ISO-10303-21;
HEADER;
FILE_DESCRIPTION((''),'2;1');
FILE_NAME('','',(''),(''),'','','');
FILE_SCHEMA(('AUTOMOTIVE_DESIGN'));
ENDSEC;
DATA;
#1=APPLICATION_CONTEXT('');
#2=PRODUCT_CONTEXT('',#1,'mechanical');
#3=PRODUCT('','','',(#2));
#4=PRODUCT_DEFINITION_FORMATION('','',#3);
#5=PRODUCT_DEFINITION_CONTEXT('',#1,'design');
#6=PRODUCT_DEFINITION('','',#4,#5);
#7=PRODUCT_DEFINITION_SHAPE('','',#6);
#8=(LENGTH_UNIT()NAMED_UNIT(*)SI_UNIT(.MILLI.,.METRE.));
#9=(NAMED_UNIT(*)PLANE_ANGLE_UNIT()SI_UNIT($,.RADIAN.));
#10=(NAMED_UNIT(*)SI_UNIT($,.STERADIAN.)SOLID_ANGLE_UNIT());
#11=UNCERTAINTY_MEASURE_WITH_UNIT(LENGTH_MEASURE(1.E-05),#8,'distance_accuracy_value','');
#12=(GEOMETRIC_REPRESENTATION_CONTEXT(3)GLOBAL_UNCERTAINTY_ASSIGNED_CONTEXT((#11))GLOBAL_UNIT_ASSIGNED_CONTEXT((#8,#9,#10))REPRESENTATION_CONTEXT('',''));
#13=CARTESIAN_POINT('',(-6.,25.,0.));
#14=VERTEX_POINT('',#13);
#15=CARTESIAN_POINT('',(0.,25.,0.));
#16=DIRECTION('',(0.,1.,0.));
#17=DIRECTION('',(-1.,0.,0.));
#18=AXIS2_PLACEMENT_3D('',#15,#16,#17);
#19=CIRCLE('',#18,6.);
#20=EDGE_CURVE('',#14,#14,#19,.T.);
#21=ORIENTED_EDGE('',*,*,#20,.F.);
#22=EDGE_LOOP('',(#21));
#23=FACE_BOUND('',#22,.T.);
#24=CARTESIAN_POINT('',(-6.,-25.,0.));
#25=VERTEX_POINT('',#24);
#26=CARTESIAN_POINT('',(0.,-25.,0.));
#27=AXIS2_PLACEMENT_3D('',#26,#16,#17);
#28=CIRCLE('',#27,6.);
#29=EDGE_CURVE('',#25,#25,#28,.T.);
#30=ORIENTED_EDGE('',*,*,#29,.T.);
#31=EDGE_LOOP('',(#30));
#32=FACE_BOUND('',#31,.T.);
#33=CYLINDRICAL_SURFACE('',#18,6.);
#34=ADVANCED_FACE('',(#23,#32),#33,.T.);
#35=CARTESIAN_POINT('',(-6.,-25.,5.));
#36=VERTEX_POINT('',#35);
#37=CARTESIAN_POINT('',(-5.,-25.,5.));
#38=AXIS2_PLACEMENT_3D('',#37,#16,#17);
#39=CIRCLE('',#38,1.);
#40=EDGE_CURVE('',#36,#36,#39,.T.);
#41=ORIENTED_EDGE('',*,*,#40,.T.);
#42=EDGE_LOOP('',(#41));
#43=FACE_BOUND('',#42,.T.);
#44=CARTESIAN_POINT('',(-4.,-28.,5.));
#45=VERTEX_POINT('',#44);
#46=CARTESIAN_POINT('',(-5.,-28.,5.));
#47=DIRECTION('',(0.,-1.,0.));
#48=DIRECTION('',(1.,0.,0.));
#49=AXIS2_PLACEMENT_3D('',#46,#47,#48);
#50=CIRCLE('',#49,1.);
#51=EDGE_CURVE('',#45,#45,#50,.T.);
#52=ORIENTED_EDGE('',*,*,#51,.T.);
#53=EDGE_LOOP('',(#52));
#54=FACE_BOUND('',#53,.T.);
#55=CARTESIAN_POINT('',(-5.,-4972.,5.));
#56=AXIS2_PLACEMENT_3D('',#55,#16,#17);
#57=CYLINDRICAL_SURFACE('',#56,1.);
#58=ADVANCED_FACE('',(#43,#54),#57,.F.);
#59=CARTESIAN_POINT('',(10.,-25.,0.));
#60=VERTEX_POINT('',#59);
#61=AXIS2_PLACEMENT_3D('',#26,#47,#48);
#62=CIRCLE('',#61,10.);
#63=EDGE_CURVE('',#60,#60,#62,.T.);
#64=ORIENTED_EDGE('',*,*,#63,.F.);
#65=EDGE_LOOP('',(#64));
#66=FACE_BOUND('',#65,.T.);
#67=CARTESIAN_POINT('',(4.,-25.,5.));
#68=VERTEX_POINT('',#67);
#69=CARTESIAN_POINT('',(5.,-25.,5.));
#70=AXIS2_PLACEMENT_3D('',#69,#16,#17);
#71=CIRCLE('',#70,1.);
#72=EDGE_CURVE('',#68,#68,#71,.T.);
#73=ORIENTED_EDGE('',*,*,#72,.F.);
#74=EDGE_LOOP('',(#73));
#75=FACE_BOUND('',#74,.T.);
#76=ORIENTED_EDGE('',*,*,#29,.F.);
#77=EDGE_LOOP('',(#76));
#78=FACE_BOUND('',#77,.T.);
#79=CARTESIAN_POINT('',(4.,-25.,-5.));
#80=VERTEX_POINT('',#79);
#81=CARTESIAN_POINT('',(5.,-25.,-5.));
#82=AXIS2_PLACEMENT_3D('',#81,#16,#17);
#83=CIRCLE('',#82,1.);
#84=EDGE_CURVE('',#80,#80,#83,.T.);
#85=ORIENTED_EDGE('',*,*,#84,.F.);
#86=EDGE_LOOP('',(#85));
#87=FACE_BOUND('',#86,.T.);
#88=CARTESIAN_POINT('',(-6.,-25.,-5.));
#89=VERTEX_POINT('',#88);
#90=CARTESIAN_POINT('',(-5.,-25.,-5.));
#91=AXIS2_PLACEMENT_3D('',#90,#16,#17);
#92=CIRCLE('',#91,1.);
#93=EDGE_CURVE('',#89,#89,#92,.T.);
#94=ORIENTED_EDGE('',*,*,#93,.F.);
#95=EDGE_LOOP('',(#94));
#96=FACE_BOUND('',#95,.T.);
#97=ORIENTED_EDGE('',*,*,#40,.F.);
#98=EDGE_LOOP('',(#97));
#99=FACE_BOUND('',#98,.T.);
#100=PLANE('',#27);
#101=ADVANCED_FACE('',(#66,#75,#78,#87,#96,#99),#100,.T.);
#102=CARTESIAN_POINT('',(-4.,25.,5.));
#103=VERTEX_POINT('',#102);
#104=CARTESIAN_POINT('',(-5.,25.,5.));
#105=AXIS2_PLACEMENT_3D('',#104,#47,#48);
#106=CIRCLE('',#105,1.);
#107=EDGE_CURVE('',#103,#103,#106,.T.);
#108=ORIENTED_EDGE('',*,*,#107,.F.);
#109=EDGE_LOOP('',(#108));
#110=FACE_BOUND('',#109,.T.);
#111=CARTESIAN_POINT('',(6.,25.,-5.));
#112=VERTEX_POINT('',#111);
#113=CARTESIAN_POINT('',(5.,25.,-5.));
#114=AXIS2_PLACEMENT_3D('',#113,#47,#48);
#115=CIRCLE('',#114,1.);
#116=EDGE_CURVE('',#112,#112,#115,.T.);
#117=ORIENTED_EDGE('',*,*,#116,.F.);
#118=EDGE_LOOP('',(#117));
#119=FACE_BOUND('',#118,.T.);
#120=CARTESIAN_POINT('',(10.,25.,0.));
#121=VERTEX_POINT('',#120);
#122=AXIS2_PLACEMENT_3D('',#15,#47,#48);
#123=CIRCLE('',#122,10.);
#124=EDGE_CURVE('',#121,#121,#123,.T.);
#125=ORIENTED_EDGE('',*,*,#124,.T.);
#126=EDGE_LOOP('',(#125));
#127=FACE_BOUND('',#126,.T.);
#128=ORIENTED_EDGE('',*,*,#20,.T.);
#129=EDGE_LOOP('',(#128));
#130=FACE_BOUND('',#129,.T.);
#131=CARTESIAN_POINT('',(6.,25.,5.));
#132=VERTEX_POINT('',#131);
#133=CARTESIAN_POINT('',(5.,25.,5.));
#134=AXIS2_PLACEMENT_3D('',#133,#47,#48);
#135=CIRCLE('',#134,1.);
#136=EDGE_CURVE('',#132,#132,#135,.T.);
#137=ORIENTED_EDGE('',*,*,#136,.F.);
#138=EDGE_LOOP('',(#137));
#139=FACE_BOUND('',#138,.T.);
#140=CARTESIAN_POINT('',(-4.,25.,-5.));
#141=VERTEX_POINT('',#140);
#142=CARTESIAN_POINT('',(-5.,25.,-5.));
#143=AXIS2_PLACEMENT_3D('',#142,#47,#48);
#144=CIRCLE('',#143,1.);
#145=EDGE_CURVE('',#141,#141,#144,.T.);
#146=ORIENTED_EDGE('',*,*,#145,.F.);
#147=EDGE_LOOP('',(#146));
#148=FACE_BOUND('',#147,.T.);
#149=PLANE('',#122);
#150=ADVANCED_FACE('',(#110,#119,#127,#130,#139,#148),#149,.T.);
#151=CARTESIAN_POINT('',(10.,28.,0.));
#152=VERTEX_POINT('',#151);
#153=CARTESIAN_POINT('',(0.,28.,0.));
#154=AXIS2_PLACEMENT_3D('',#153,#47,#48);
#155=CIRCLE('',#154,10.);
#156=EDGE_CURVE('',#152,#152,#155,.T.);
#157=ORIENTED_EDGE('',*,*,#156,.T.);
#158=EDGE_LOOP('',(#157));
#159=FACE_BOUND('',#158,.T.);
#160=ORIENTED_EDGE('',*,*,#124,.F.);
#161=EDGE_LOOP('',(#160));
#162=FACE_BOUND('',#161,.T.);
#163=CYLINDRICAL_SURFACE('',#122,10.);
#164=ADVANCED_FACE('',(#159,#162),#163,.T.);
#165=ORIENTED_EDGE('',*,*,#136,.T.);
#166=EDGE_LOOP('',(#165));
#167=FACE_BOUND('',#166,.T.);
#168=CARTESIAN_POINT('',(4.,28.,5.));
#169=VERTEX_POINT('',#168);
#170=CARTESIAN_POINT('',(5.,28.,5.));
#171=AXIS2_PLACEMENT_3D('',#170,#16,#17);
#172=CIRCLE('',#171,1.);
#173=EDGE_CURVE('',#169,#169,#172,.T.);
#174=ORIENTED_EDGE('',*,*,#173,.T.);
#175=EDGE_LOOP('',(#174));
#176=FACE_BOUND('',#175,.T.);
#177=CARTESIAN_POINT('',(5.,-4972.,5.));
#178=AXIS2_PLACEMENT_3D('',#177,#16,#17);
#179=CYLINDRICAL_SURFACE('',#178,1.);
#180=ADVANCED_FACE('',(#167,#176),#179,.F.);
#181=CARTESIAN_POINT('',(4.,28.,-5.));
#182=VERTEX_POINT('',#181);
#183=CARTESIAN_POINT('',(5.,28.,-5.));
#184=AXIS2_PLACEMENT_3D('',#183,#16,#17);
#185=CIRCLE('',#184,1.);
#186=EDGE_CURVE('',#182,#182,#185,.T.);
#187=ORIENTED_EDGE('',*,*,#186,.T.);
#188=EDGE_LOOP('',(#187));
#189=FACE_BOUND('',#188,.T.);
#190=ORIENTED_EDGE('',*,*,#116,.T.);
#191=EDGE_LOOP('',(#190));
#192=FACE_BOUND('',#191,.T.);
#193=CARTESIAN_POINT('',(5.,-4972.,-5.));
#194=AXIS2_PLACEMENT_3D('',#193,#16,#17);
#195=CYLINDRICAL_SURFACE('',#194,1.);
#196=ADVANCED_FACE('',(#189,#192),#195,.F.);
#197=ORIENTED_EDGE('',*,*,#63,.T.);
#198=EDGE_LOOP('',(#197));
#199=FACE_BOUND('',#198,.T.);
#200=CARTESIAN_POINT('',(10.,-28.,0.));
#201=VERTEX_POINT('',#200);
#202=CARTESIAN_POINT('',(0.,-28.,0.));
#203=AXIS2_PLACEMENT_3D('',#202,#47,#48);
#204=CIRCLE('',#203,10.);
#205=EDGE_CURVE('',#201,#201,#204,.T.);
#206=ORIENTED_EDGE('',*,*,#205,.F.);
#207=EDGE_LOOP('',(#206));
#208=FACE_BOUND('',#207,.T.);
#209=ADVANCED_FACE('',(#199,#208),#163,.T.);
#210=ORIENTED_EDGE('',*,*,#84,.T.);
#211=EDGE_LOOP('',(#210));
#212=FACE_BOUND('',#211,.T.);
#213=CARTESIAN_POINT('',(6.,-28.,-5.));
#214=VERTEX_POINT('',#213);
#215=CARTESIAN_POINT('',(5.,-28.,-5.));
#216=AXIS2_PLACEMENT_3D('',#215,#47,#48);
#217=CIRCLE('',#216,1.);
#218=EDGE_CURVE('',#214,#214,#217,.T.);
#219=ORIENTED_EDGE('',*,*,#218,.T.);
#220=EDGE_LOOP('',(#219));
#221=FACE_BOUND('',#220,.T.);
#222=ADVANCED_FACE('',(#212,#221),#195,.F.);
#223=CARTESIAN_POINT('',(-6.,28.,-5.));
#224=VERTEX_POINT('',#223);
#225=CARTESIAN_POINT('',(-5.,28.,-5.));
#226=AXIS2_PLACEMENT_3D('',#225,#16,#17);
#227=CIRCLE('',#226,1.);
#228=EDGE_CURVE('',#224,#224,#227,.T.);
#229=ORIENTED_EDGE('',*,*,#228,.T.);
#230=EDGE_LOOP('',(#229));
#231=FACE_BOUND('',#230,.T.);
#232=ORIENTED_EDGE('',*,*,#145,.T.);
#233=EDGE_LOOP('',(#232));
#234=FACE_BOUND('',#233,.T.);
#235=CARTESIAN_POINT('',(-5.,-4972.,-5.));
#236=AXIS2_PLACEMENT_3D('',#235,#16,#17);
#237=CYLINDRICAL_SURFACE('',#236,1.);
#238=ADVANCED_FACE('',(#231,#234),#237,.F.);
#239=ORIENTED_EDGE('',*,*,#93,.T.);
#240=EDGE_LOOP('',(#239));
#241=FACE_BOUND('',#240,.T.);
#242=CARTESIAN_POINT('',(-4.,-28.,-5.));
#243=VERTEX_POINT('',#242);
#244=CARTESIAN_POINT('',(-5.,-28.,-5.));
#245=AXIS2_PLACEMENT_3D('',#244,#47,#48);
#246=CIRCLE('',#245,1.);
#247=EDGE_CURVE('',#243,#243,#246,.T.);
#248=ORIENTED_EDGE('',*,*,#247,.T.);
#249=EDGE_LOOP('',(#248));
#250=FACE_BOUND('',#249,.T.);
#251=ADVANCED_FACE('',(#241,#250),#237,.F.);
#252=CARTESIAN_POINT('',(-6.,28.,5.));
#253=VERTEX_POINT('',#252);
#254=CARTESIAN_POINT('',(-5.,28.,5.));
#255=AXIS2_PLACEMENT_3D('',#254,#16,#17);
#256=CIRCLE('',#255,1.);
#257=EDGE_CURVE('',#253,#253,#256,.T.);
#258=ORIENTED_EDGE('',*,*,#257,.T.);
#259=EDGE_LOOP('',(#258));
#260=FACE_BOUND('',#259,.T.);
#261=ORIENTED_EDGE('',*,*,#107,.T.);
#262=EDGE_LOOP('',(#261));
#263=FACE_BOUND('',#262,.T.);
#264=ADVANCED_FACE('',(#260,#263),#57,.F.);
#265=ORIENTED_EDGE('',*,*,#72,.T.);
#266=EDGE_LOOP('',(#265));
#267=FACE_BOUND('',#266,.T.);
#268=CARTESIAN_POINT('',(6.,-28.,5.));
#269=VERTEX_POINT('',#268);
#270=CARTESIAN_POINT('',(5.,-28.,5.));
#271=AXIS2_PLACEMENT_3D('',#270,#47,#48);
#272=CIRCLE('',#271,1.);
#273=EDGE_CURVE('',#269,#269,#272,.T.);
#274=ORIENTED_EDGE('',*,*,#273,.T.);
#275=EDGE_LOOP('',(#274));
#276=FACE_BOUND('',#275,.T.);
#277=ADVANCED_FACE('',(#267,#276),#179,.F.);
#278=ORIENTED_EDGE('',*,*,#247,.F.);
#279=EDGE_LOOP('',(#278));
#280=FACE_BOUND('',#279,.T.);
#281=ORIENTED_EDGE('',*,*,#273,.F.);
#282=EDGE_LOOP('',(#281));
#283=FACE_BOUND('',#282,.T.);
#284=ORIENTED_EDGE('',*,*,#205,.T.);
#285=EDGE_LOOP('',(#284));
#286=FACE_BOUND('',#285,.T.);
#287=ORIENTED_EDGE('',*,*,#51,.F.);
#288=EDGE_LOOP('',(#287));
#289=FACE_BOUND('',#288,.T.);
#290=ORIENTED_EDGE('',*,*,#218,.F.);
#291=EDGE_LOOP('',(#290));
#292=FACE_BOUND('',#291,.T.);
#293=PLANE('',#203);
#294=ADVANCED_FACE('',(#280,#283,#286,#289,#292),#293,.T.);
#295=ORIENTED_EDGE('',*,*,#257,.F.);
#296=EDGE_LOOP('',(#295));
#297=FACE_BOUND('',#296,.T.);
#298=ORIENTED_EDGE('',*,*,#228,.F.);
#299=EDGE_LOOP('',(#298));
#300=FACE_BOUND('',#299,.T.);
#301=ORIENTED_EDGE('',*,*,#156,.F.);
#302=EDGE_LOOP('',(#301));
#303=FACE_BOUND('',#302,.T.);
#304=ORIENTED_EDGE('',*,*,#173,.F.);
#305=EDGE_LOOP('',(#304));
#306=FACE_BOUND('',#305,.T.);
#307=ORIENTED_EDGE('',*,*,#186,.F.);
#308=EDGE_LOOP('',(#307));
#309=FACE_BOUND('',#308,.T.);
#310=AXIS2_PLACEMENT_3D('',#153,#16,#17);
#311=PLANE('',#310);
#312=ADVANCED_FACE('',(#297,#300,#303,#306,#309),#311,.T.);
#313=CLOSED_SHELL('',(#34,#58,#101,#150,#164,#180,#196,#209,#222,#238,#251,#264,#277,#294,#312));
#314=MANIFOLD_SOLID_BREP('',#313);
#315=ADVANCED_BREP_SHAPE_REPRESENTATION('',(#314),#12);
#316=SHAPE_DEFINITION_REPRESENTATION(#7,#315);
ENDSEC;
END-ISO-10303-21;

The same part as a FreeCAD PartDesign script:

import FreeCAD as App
import Part
import Sketcher


def add_polygon(sketch, points):
    """Adds a closed chain of lines whose ends are joined by coincident constraints."""
    first, n = sketch.GeometryCount, len(points)
    for a, b in zip(points, points[1:] + points[:1]):
        sketch.addGeometry(Part.LineSegment(App.Vector(*a, 0), App.Vector(*b, 0)), False)
    for i in range(n):
        sketch.addConstraint(Sketcher.Constraint("Coincident", first + i, 2, first + (i + 1) % n, 1))

doc = App.newDocument("Part")
params = doc.addObject("Spreadsheet::Sheet", "Params")
for row, (alias, value) in enumerate([
    ("sketch1_width", "6 mm"),
    ("sketch1_height", "50 mm"),
    ("revolution_angle", "360 deg"),
    ("sketch2_width", "10 mm"),
    ("sketch2_height", "3 mm"),
    ("revolution2_angle", "360 deg"),
    ("sketch3_diameter", "2 mm"),
    ("pocket1_length", "5000 mm"),
], start=1):
    params.set(f"A{row}", alias)
    params.set(f"B{row}", "=" + value)
    params.setAlias(f"B{row}", alias)

body = doc.addObject("PartDesign::Body", "Body")

# Sketch on XY plane
sketch1 = body.newObject("Sketcher::SketchObject", "Sketch")
sketch1.AttachmentSupport = (doc.getObject("XY_Plane"), [""])
sketch1.MapMode = "FlatFace"
add_polygon(sketch1, [(0, 25), (0, -25), (6, -25), (6, 25)])  # lines 0-3
sketch1.addConstraint(Sketcher.Constraint("Vertical", 0))
sketch1.addConstraint(Sketcher.Constraint("Horizontal", 1))
sketch1.addConstraint(Sketcher.Constraint("Vertical", 2))
sketch1.addConstraint(Sketcher.Constraint("Horizontal", 3))
sketch1.addConstraint(Sketcher.Constraint("Symmetric", 0, 2, 3, 2, -1, 1))
sketch1.addConstraint(Sketcher.Constraint("DistanceX", 1, 1, 1, 2, 6.0))
sketch1.addConstraint(Sketcher.Constraint("DistanceY", 0, 2, 0, 1, 50.0))
sketch1.setExpression("Constraints[9]", "Params.sketch1_width")
sketch1.setExpression("Constraints[10]", "Params.sketch1_height")
revolution = body.newObject("PartDesign::Revolution", "Revolution")
revolution.Profile = sketch1
revolution.ReferenceAxis = (sketch1, ["V_Axis"])
revolution.setExpression("Angle", "Params.revolution_angle")

# Sketch on XY plane
sketch2 = body.newObject("Sketcher::SketchObject", "Sketch001")
sketch2.AttachmentSupport = (doc.getObject("XY_Plane"), [""])
sketch2.MapMode = "FlatFace"
add_polygon(sketch2, [(0, 28), (0, 25), (10, 25), (10, 28)])  # lines 0-3
add_polygon(sketch2, [(0, -25), (0, -28), (10, -28), (10, -25)])  # lines 4-7
sketch2.addConstraint(Sketcher.Constraint("Vertical", 0))
sketch2.addConstraint(Sketcher.Constraint("Horizontal", 1))
sketch2.addConstraint(Sketcher.Constraint("Vertical", 2))
sketch2.addConstraint(Sketcher.Constraint("Horizontal", 3))
sketch2.addConstraint(Sketcher.Constraint("Vertical", 4))
sketch2.addConstraint(Sketcher.Constraint("Horizontal", 5))
sketch2.addConstraint(Sketcher.Constraint("Vertical", 6))
sketch2.addConstraint(Sketcher.Constraint("Horizontal", 7))
sketch2.addConstraint(Sketcher.Constraint("Symmetric", 3, 2, 4, 2, -1, 1))
sketch2.addConstraint(Sketcher.Constraint("Symmetric", 1, 2, 6, 2, -1))
sketch2.addConstraint(Sketcher.Constraint("PointOnObject", 0, 2, -2))
sketch2.addConstraint(Sketcher.Constraint("DistanceX", 1, 1, 1, 2, 10.0))
sketch2.addConstraint(Sketcher.Constraint("DistanceY", 0, 2, 0, 1, 3.0))
sketch2.addConstraint(Sketcher.Constraint("DistanceY", -1, 1, 0, 2, 25.0))
sketch2.setExpression("Constraints[19]", "Params.sketch2_width")
sketch2.setExpression("Constraints[20]", "Params.sketch2_height")
revolution2 = body.newObject("PartDesign::Revolution", "Revolution001")
revolution2.Profile = sketch2
revolution2.ReferenceAxis = (sketch2, ["V_Axis"])
revolution2.setExpression("Angle", "Params.revolution2_angle")

# Sketch on XZ plane
sketch3 = body.newObject("Sketcher::SketchObject", "Sketch002")
sketch3.AttachmentSupport = (doc.getObject("XZ_Plane"), [""])
sketch3.MapMode = "FlatFace"
sketch3.AttachmentOffset = App.Placement(App.Vector(0, 0, -28), App.Rotation())
sketch3.addGeometry(Part.Circle(App.Vector(-5, -5, 0), App.Vector(0, 0, 1), 1), False)
sketch3.addGeometry(Part.Circle(App.Vector(5, -5, 0), App.Vector(0, 0, 1), 1), False)
sketch3.addGeometry(Part.Circle(App.Vector(-5, 5, 0), App.Vector(0, 0, 1), 1), False)
sketch3.addGeometry(Part.Circle(App.Vector(5, 5, 0), App.Vector(0, 0, 1), 1), False)
sketch3.addConstraint(Sketcher.Constraint("Equal", 0, 1))
sketch3.addConstraint(Sketcher.Constraint("Equal", 1, 2))
sketch3.addConstraint(Sketcher.Constraint("Equal", 2, 3))
sketch3.addConstraint(Sketcher.Constraint("Symmetric", 1, 3, 2, 3, -1, 1))
sketch3.addConstraint(Sketcher.Constraint("Symmetric", 0, 3, 3, 3, -1, 1))
sketch3.addConstraint(Sketcher.Constraint("Symmetric", 0, 3, 1, 3, -2))
sketch3.addConstraint(Sketcher.Constraint("Diameter", 0, 2.0))
sketch3.addConstraint(Sketcher.Constraint("DistanceX", 0, 3, -1, 1, 5.0))
sketch3.addConstraint(Sketcher.Constraint("DistanceY", 0, 3, -1, 1, 5.0))
sketch3.setExpression("Constraints[6]", "Params.sketch3_diameter")
pocket1 = body.newObject("PartDesign::Pocket", "Pocket")
pocket1.Profile = sketch3
pocket1.setExpression("Length", "Params.pocket1_length")
pocket1.Reversed = True

doc.recompute()
